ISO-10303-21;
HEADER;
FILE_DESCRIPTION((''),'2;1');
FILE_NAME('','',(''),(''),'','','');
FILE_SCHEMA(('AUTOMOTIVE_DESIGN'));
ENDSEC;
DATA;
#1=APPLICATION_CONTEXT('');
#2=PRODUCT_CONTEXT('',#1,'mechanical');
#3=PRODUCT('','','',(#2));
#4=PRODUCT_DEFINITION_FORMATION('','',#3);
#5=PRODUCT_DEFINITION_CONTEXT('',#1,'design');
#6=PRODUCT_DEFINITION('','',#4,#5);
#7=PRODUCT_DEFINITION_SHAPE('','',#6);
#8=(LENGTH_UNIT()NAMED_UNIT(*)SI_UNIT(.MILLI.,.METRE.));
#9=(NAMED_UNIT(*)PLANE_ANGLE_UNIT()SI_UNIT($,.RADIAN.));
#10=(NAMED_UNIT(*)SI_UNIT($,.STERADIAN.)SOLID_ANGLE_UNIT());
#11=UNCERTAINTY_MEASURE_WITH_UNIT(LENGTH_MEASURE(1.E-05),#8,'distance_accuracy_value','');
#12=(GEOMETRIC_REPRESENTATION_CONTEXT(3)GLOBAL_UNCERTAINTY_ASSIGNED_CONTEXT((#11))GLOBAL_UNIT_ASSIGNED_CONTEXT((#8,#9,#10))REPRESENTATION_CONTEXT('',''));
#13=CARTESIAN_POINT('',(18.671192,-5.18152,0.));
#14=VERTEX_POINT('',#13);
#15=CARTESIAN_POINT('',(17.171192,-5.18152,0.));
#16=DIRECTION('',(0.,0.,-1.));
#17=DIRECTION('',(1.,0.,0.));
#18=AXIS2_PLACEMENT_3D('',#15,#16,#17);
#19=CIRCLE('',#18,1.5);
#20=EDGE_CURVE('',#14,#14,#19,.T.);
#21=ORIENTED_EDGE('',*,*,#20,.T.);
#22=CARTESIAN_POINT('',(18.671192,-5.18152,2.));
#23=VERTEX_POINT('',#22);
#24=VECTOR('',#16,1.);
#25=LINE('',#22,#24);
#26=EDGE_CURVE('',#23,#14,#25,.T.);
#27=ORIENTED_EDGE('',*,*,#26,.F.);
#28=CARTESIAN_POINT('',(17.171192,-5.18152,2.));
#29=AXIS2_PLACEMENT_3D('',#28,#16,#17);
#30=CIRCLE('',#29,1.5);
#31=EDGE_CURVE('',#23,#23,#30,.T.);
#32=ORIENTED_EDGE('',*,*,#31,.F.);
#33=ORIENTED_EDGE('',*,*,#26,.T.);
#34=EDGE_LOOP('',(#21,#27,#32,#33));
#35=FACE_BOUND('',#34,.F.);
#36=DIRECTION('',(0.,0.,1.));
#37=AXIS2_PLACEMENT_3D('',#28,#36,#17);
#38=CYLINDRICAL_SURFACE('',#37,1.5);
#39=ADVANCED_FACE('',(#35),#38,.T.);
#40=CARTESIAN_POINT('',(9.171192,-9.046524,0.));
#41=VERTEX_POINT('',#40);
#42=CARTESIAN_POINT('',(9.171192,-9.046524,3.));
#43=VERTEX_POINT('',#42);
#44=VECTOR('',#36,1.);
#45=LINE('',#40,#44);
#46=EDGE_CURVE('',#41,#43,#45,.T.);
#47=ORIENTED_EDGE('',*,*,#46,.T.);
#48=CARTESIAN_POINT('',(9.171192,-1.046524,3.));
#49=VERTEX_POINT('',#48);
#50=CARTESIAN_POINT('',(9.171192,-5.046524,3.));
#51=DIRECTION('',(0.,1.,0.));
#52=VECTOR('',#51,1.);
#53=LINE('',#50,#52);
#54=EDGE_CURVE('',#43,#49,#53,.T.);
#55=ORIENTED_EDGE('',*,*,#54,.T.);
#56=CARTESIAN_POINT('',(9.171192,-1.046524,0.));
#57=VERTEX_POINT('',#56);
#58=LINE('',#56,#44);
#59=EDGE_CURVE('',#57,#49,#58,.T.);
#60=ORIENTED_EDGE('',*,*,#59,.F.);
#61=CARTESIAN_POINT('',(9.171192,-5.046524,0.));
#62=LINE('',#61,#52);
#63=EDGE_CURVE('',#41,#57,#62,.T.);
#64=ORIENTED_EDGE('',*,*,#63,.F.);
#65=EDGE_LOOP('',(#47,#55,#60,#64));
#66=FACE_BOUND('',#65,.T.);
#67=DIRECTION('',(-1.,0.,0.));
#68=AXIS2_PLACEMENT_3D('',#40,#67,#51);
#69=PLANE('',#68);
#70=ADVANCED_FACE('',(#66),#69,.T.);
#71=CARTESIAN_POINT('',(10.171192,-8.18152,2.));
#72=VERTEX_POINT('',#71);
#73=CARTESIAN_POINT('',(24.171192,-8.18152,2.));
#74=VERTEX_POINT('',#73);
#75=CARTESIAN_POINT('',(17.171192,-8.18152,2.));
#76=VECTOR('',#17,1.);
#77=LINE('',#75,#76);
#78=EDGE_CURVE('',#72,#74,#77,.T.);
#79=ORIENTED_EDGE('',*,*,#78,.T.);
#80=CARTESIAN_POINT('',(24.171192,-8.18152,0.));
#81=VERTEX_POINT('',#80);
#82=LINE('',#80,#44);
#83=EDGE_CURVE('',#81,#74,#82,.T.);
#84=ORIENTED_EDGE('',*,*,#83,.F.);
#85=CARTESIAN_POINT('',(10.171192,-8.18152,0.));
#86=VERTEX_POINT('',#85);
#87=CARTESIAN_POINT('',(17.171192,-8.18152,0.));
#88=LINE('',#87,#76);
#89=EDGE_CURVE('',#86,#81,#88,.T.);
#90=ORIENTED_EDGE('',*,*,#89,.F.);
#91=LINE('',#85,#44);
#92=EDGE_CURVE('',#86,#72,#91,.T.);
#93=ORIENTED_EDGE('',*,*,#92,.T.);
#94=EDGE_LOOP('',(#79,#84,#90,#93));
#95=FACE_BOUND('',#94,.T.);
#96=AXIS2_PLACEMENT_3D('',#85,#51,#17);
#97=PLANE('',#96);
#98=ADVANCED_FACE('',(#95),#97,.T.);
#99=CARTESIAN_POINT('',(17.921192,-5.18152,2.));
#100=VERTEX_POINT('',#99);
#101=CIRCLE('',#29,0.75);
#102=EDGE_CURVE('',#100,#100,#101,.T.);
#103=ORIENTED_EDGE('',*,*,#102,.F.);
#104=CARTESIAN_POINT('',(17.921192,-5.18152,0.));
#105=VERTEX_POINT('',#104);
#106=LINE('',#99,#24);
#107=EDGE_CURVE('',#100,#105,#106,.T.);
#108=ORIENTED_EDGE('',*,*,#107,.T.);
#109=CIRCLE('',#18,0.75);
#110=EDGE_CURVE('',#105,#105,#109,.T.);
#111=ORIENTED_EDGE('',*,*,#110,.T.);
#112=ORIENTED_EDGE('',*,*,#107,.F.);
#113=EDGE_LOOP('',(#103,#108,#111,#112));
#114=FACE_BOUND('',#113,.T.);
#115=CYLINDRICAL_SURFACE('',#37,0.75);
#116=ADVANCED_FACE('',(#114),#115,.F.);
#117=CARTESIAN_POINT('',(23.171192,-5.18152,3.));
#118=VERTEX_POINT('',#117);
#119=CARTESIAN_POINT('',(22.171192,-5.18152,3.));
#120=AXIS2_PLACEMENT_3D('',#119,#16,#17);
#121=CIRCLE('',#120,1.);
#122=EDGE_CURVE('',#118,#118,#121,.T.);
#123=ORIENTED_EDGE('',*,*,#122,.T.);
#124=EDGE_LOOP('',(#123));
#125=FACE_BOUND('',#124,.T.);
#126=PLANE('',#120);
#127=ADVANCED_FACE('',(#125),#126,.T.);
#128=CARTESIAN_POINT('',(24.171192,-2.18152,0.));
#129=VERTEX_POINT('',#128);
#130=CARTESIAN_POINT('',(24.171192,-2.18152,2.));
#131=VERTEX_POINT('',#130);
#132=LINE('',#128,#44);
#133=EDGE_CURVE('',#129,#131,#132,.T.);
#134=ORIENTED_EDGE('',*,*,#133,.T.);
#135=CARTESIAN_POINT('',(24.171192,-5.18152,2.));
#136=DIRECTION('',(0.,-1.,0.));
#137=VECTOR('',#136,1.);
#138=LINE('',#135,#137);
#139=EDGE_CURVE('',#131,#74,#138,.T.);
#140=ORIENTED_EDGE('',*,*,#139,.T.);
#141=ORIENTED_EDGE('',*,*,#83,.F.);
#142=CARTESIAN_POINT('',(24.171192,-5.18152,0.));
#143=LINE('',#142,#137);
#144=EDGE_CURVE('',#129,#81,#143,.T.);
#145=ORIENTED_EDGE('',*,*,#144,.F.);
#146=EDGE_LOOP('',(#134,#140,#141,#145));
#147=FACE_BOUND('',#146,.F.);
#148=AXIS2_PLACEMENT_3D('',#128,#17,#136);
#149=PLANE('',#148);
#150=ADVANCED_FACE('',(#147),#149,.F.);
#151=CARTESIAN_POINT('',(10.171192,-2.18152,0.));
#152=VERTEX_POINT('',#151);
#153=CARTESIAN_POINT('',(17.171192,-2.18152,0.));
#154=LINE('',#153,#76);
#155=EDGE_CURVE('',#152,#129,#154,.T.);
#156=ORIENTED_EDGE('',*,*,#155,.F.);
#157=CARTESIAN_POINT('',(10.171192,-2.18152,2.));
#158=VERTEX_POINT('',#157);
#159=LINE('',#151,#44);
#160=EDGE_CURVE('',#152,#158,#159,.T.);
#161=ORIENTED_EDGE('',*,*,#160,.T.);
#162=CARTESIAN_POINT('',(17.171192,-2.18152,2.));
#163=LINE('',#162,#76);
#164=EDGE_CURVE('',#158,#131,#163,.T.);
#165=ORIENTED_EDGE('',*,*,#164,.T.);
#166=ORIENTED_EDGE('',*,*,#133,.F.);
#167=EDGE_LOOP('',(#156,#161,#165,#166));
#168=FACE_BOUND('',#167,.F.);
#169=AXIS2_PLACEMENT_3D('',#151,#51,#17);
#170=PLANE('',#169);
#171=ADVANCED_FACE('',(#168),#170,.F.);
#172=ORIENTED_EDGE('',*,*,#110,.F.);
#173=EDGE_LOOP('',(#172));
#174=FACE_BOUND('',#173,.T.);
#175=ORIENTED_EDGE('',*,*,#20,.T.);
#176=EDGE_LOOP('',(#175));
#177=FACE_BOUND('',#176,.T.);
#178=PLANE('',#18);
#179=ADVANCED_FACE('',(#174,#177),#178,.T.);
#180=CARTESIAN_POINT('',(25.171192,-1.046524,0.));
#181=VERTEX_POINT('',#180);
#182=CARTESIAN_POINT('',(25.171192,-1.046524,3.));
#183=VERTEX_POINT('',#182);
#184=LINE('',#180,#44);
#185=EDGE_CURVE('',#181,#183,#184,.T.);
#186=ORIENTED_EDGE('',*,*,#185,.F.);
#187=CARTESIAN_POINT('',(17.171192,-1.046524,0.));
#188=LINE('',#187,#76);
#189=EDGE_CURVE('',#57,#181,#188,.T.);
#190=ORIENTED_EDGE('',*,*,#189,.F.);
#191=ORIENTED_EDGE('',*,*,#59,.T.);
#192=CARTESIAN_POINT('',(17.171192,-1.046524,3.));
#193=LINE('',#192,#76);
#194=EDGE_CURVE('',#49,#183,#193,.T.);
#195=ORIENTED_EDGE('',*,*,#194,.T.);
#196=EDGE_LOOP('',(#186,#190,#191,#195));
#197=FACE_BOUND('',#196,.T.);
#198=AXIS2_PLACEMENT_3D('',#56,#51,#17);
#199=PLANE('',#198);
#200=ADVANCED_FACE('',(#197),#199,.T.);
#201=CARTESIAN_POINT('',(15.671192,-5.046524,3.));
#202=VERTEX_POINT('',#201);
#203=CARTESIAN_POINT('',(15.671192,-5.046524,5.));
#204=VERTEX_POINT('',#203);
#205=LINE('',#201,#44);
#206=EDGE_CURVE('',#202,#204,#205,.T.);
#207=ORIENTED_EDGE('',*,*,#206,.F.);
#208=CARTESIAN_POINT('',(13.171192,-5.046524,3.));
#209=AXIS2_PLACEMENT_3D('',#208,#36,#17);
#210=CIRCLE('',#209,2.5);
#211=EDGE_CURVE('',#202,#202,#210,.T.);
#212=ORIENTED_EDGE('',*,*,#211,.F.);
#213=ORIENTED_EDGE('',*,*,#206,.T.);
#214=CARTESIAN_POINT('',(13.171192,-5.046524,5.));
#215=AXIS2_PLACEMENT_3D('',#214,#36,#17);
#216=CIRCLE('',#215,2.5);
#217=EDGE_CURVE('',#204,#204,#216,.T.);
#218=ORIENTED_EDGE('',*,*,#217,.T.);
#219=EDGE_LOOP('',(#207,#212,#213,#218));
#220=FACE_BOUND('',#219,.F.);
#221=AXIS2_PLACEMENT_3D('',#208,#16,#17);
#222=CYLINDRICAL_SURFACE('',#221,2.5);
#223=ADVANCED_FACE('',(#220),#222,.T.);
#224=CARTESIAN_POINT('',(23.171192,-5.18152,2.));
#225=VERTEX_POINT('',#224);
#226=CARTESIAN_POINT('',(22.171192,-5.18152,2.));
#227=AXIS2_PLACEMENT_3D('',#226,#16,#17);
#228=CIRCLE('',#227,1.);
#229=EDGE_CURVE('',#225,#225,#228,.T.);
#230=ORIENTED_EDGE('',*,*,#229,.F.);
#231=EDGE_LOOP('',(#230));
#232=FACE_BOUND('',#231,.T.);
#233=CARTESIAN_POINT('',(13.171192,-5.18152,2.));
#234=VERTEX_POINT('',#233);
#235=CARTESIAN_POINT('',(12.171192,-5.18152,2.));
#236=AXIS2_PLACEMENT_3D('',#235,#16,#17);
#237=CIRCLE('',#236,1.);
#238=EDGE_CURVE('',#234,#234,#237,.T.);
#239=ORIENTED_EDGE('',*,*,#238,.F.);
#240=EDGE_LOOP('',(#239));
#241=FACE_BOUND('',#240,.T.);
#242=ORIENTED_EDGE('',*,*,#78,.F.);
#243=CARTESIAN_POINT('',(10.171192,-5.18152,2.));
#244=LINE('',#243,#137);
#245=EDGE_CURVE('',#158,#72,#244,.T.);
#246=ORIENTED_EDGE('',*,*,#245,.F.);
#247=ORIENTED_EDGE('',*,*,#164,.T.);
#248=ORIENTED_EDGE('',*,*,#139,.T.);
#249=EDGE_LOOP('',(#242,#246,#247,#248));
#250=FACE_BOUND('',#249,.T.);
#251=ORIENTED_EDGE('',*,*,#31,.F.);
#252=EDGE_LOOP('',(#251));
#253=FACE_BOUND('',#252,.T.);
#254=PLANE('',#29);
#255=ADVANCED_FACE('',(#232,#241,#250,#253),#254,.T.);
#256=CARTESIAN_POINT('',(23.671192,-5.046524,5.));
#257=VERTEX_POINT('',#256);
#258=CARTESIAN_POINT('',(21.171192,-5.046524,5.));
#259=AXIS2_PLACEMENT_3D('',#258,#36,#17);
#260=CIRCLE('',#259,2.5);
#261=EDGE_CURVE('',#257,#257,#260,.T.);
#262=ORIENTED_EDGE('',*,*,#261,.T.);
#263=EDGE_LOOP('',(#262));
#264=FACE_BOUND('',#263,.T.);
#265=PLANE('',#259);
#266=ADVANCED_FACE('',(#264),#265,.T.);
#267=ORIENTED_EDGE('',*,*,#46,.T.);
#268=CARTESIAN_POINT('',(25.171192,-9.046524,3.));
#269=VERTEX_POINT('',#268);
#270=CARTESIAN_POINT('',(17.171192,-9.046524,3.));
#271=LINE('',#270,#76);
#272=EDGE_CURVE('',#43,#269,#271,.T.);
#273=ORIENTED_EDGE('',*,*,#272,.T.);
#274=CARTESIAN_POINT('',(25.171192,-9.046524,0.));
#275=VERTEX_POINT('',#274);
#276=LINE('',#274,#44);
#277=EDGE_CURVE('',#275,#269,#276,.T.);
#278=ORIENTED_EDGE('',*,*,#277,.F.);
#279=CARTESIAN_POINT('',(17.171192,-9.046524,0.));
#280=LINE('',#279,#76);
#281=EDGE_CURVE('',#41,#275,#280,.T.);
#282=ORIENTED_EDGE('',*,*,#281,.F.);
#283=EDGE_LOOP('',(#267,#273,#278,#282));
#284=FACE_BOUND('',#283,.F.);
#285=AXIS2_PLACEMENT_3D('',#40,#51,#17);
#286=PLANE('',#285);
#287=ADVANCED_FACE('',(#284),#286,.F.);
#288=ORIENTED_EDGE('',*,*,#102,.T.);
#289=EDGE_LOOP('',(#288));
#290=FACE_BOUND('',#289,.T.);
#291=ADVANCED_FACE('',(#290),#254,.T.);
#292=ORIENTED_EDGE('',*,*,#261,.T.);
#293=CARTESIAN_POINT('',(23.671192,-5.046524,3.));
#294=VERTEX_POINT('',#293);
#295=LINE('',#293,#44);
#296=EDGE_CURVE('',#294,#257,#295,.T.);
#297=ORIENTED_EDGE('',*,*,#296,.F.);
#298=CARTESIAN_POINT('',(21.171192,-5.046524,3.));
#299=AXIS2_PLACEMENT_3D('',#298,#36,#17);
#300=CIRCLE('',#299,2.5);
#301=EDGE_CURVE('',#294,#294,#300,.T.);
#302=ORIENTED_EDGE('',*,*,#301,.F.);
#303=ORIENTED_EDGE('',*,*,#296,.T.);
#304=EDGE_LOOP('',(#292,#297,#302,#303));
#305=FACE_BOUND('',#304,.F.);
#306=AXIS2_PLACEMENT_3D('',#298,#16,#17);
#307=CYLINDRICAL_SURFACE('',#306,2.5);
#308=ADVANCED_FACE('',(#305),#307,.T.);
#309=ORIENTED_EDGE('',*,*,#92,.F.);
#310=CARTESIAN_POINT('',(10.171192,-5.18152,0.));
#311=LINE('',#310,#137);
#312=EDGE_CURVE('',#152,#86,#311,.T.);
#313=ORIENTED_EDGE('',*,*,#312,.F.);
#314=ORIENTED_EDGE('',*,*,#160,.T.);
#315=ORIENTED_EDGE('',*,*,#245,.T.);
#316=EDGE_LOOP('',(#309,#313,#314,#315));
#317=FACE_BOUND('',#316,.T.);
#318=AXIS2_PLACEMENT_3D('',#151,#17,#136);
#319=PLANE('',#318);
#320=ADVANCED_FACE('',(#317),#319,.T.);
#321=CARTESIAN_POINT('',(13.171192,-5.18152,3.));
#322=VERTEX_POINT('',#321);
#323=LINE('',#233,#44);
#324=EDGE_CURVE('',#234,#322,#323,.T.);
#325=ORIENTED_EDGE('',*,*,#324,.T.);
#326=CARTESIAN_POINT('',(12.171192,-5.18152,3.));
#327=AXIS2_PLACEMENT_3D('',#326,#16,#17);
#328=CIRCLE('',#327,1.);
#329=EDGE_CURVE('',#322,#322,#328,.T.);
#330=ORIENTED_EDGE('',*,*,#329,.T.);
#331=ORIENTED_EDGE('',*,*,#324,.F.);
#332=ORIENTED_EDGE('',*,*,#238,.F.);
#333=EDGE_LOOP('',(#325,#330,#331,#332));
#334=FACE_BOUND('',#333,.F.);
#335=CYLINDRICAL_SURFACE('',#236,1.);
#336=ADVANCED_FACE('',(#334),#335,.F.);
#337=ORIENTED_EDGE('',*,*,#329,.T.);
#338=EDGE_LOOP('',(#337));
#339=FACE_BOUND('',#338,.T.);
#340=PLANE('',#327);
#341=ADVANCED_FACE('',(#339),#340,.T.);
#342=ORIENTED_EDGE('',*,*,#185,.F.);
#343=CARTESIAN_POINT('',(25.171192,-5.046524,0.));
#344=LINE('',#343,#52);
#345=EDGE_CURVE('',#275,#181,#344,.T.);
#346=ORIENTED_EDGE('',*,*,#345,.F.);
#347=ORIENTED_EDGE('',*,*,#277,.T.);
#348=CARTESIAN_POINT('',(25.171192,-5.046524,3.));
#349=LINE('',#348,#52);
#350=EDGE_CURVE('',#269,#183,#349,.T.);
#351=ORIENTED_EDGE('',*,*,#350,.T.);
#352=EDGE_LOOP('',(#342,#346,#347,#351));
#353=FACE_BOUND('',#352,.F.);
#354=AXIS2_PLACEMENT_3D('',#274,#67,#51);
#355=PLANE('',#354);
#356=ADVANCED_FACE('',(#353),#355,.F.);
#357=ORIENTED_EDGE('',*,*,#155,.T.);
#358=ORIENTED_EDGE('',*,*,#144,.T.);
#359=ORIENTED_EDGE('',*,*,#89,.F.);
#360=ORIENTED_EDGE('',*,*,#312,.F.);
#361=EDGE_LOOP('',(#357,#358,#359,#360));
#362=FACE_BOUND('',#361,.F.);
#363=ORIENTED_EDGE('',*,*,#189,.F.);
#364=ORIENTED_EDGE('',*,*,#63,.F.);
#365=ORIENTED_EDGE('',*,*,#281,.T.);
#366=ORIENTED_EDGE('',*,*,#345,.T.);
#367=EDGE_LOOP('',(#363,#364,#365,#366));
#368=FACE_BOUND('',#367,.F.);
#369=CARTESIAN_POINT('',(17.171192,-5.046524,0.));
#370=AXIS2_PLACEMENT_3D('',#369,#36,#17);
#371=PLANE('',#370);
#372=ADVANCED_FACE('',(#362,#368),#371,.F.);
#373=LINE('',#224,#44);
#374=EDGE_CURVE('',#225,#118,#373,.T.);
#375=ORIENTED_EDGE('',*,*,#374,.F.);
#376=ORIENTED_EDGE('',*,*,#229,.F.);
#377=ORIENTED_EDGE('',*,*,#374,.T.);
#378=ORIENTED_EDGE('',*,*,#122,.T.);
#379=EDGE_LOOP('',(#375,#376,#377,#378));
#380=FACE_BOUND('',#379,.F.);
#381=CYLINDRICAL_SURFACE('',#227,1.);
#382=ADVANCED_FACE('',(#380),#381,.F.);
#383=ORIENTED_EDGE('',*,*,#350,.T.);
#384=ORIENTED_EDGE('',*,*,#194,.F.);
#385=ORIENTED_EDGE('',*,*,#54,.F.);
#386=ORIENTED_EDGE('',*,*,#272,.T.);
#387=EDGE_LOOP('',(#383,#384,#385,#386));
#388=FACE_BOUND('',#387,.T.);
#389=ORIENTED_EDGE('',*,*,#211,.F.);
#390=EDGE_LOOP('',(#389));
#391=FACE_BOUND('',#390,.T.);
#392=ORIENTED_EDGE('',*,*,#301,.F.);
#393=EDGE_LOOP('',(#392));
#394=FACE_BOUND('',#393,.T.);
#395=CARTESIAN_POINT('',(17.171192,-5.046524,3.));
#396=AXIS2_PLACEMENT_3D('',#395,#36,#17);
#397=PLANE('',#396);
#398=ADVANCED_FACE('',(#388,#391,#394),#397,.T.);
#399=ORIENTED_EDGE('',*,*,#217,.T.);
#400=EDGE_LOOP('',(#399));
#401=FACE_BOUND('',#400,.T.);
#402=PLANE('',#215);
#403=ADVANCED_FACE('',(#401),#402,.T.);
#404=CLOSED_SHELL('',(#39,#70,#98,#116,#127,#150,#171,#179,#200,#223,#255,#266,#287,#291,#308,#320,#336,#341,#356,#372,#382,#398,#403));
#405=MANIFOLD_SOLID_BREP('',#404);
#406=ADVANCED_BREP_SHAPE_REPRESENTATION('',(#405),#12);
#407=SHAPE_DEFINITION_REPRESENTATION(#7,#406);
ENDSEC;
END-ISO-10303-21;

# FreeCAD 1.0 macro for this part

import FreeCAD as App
import Part
import Sketcher

V = App.Vector
Q = App.Units.Quantity


def add_polygon(sketch, points):
    """Adds a closed chain of lines whose ends are joined by coincident constraints."""
    first, n = sketch.GeometryCount, len(points)
    for a, b in zip(points, points[1:] + points[:1]):
        sketch.addGeometry(Part.LineSegment(App.Vector(*a, 0), App.Vector(*b, 0)), False)
    for i in range(n):
        sketch.addConstraint(Sketcher.Constraint("Coincident", first + i, 2, first + (i + 1) % n, 1))

doc = App.newDocument("Part")
body = doc.addObject("PartDesign::Body", "Body")

# Sketch on XY plane
sketch1 = body.newObject("Sketcher::SketchObject", "Sketch")
sketch1.AttachmentSupport = (doc.getObject("XY_Plane"), [""])
sketch1.MapMode = "FlatFace"
add_polygon(sketch1, [(9, -1), (9, -9), (25, -9), (25, -1)])  # lines 0-3
sketch1.addConstraint(Sketcher.Constraint("Vertical", 0))
sketch1.addConstraint(Sketcher.Constraint("Horizontal", 1))
sketch1.addConstraint(Sketcher.Constraint("Vertical", 2))
sketch1.addConstraint(Sketcher.Constraint("Horizontal", 3))
sketch1.addConstraint(Sketcher.Constraint("DistanceX", 1, 1, 1, 2, Q("16 mm")))
sketch1.addConstraint(Sketcher.Constraint("DistanceY", 0, 2, 0, 1, Q("8 mm")))
sketch1.addConstraint(Sketcher.Constraint("DistanceX", -1, 1, 0, 2, Q("9.171192 mm")))
sketch1.addConstraint(Sketcher.Constraint("DistanceY", 0, 2, -1, 1, Q("9.046524 mm")))
pad1 = body.newObject("PartDesign::Pad", "Pad")
pad1.Profile = sketch1
pad1.Length = 3

# Sketch on XY plane
sketch2 = body.newObject("Sketcher::SketchObject", "Sketch001")
sketch2.AttachmentSupport = (doc.getObject("XY_Plane"), [""])
sketch2.MapMode = "FlatFace"
sketch2.AttachmentOffset = App.Placement(V(0, 0, 3), App.Rotation())
sketch2.addGeometry(Part.Circle(V(13.2, -5, 0), V(0, 0, 1), 2.5), False)
sketch2.addGeometry(Part.Circle(V(21.2, -5, 0), V(0, 0, 1), 2.5), False)
sketch2.addConstraint(Sketcher.Constraint("Equal", 0, 1))
sketch2.addConstraint(Sketcher.Constraint("Horizontal", 0, 3, 1, 3))
sketch2.addConstraint(Sketcher.Constraint("Diameter", 0, Q("5 mm")))
sketch2.addConstraint(Sketcher.Constraint("DistanceX", 0, 3, 1, 3, Q("8 mm")))
sketch2.addConstraint(Sketcher.Constraint("DistanceX", -1, 1, 0, 3, Q("13.171192 mm")))
sketch2.addConstraint(Sketcher.Constraint("DistanceY", 0, 3, -1, 1, Q("5.046524 mm")))
pad2 = body.newObject("PartDesign::Pad", "Pad001")
pad2.Profile = sketch2
pad2.Length = 2

# Sketch on XY plane
sketch3 = body.newObject("Sketcher::SketchObject", "Sketch002")
sketch3.AttachmentSupport = (doc.getObject("XY_Plane"), [""])
sketch3.MapMode = "FlatFace"
add_polygon(sketch3, [(10, -8), (10, -2), (24, -2), (24, -8)])  # lines 0-3
sketch3.addConstraint(Sketcher.Constraint("Vertical", 0))
sketch3.addConstraint(Sketcher.Constraint("Horizontal", 1))
sketch3.addConstraint(Sketcher.Constraint("Vertical", 2))
sketch3.addConstraint(Sketcher.Constraint("Horizontal", 3))
sketch3.addConstraint(Sketcher.Constraint("DistanceX", 1, 1, 1, 2, Q("14 mm")))
sketch3.addConstraint(Sketcher.Constraint("DistanceY", 0, 1, 0, 2, Q("6 mm")))
sketch3.addConstraint(Sketcher.Constraint("DistanceY", 0, 2, -1, 1, Q("2.18152 mm")))
sketch3.addConstraint(Sketcher.Constraint("DistanceX", -1, 1, 0, 2, Q("10.171192 mm")))
pocket1 = body.newObject("PartDesign::Pocket", "Pocket")
pocket1.Profile = sketch3
pocket1.Length = 2
pocket1.Reversed = True

# Sketch on XY plane
sketch4 = body.newObject("Sketcher::SketchObject", "Sketch003")
sketch4.AttachmentSupport = (doc.getObject("XY_Plane"), [""])
sketch4.MapMode = "FlatFace"
sketch4.AttachmentOffset = App.Placement(V(0, 0, 2), App.Rotation())
sketch4.addGeometry(Part.Circle(V(17.2, -5.2, 0), V(0, 0, 1), 1.5), False)
sketch4.addGeometry(Part.Circle(V(17.2, -5.2, 0), V(0, 0, 1), 0.8), False)
sketch4.addConstraint(Sketcher.Constraint("Coincident", 1, 3, 0, 3))
sketch4.addConstraint(Sketcher.Constraint("Diameter", 0, Q("3 mm")))
sketch4.addConstraint(Sketcher.Constraint("Diameter", 1, Q("1.5 mm")))
sketch4.addConstraint(Sketcher.Constraint("DistanceY", 0, 3, -1, 1, Q("5.18152 mm")))
sketch4.addConstraint(Sketcher.Constraint("DistanceX", -1, 1, 0, 3, Q("17.171192 mm")))
pad3 = body.newObject("PartDesign::Pad", "Pad002")
pad3.Profile = sketch4
pad3.Length = 2
pad3.Reversed = True

# Sketch on XY plane
sketch5 = body.newObject("Sketcher::SketchObject", "Sketch004")
sketch5.AttachmentSupport = (doc.getObject("XY_Plane"), [""])
sketch5.MapMode = "FlatFace"
sketch5.AttachmentOffset = App.Placement(V(0, 0, 2), App.Rotation())
sketch5.addGeometry(Part.Circle(V(12.2, -5.2, 0), V(0, 0, 1), 1), False)
sketch5.addGeometry(Part.Circle(V(22.2, -5.2, 0), V(0, 0, 1), 1), False)
sketch5.addConstraint(Sketcher.Constraint("Equal", 0, 1))
sketch5.addConstraint(Sketcher.Constraint("Horizontal", 0, 3, 1, 3))
sketch5.addConstraint(Sketcher.Constraint("Diameter", 0, Q("2 mm")))
sketch5.addConstraint(Sketcher.Constraint("DistanceX", 0, 3, 1, 3, Q("10 mm")))
sketch5.addConstraint(Sketcher.Constraint("DistanceY", 0, 3, -1, 1, Q("5.18152 mm")))
sketch5.addConstraint(Sketcher.Constraint("DistanceX", -1, 1, 0, 3, Q("12.171192 mm")))
pocket2 = body.newObject("PartDesign::Pocket", "Pocket001")
pocket2.Profile = sketch5
pocket2.Length = 1
pocket2.Reversed = True

doc.recompute()
